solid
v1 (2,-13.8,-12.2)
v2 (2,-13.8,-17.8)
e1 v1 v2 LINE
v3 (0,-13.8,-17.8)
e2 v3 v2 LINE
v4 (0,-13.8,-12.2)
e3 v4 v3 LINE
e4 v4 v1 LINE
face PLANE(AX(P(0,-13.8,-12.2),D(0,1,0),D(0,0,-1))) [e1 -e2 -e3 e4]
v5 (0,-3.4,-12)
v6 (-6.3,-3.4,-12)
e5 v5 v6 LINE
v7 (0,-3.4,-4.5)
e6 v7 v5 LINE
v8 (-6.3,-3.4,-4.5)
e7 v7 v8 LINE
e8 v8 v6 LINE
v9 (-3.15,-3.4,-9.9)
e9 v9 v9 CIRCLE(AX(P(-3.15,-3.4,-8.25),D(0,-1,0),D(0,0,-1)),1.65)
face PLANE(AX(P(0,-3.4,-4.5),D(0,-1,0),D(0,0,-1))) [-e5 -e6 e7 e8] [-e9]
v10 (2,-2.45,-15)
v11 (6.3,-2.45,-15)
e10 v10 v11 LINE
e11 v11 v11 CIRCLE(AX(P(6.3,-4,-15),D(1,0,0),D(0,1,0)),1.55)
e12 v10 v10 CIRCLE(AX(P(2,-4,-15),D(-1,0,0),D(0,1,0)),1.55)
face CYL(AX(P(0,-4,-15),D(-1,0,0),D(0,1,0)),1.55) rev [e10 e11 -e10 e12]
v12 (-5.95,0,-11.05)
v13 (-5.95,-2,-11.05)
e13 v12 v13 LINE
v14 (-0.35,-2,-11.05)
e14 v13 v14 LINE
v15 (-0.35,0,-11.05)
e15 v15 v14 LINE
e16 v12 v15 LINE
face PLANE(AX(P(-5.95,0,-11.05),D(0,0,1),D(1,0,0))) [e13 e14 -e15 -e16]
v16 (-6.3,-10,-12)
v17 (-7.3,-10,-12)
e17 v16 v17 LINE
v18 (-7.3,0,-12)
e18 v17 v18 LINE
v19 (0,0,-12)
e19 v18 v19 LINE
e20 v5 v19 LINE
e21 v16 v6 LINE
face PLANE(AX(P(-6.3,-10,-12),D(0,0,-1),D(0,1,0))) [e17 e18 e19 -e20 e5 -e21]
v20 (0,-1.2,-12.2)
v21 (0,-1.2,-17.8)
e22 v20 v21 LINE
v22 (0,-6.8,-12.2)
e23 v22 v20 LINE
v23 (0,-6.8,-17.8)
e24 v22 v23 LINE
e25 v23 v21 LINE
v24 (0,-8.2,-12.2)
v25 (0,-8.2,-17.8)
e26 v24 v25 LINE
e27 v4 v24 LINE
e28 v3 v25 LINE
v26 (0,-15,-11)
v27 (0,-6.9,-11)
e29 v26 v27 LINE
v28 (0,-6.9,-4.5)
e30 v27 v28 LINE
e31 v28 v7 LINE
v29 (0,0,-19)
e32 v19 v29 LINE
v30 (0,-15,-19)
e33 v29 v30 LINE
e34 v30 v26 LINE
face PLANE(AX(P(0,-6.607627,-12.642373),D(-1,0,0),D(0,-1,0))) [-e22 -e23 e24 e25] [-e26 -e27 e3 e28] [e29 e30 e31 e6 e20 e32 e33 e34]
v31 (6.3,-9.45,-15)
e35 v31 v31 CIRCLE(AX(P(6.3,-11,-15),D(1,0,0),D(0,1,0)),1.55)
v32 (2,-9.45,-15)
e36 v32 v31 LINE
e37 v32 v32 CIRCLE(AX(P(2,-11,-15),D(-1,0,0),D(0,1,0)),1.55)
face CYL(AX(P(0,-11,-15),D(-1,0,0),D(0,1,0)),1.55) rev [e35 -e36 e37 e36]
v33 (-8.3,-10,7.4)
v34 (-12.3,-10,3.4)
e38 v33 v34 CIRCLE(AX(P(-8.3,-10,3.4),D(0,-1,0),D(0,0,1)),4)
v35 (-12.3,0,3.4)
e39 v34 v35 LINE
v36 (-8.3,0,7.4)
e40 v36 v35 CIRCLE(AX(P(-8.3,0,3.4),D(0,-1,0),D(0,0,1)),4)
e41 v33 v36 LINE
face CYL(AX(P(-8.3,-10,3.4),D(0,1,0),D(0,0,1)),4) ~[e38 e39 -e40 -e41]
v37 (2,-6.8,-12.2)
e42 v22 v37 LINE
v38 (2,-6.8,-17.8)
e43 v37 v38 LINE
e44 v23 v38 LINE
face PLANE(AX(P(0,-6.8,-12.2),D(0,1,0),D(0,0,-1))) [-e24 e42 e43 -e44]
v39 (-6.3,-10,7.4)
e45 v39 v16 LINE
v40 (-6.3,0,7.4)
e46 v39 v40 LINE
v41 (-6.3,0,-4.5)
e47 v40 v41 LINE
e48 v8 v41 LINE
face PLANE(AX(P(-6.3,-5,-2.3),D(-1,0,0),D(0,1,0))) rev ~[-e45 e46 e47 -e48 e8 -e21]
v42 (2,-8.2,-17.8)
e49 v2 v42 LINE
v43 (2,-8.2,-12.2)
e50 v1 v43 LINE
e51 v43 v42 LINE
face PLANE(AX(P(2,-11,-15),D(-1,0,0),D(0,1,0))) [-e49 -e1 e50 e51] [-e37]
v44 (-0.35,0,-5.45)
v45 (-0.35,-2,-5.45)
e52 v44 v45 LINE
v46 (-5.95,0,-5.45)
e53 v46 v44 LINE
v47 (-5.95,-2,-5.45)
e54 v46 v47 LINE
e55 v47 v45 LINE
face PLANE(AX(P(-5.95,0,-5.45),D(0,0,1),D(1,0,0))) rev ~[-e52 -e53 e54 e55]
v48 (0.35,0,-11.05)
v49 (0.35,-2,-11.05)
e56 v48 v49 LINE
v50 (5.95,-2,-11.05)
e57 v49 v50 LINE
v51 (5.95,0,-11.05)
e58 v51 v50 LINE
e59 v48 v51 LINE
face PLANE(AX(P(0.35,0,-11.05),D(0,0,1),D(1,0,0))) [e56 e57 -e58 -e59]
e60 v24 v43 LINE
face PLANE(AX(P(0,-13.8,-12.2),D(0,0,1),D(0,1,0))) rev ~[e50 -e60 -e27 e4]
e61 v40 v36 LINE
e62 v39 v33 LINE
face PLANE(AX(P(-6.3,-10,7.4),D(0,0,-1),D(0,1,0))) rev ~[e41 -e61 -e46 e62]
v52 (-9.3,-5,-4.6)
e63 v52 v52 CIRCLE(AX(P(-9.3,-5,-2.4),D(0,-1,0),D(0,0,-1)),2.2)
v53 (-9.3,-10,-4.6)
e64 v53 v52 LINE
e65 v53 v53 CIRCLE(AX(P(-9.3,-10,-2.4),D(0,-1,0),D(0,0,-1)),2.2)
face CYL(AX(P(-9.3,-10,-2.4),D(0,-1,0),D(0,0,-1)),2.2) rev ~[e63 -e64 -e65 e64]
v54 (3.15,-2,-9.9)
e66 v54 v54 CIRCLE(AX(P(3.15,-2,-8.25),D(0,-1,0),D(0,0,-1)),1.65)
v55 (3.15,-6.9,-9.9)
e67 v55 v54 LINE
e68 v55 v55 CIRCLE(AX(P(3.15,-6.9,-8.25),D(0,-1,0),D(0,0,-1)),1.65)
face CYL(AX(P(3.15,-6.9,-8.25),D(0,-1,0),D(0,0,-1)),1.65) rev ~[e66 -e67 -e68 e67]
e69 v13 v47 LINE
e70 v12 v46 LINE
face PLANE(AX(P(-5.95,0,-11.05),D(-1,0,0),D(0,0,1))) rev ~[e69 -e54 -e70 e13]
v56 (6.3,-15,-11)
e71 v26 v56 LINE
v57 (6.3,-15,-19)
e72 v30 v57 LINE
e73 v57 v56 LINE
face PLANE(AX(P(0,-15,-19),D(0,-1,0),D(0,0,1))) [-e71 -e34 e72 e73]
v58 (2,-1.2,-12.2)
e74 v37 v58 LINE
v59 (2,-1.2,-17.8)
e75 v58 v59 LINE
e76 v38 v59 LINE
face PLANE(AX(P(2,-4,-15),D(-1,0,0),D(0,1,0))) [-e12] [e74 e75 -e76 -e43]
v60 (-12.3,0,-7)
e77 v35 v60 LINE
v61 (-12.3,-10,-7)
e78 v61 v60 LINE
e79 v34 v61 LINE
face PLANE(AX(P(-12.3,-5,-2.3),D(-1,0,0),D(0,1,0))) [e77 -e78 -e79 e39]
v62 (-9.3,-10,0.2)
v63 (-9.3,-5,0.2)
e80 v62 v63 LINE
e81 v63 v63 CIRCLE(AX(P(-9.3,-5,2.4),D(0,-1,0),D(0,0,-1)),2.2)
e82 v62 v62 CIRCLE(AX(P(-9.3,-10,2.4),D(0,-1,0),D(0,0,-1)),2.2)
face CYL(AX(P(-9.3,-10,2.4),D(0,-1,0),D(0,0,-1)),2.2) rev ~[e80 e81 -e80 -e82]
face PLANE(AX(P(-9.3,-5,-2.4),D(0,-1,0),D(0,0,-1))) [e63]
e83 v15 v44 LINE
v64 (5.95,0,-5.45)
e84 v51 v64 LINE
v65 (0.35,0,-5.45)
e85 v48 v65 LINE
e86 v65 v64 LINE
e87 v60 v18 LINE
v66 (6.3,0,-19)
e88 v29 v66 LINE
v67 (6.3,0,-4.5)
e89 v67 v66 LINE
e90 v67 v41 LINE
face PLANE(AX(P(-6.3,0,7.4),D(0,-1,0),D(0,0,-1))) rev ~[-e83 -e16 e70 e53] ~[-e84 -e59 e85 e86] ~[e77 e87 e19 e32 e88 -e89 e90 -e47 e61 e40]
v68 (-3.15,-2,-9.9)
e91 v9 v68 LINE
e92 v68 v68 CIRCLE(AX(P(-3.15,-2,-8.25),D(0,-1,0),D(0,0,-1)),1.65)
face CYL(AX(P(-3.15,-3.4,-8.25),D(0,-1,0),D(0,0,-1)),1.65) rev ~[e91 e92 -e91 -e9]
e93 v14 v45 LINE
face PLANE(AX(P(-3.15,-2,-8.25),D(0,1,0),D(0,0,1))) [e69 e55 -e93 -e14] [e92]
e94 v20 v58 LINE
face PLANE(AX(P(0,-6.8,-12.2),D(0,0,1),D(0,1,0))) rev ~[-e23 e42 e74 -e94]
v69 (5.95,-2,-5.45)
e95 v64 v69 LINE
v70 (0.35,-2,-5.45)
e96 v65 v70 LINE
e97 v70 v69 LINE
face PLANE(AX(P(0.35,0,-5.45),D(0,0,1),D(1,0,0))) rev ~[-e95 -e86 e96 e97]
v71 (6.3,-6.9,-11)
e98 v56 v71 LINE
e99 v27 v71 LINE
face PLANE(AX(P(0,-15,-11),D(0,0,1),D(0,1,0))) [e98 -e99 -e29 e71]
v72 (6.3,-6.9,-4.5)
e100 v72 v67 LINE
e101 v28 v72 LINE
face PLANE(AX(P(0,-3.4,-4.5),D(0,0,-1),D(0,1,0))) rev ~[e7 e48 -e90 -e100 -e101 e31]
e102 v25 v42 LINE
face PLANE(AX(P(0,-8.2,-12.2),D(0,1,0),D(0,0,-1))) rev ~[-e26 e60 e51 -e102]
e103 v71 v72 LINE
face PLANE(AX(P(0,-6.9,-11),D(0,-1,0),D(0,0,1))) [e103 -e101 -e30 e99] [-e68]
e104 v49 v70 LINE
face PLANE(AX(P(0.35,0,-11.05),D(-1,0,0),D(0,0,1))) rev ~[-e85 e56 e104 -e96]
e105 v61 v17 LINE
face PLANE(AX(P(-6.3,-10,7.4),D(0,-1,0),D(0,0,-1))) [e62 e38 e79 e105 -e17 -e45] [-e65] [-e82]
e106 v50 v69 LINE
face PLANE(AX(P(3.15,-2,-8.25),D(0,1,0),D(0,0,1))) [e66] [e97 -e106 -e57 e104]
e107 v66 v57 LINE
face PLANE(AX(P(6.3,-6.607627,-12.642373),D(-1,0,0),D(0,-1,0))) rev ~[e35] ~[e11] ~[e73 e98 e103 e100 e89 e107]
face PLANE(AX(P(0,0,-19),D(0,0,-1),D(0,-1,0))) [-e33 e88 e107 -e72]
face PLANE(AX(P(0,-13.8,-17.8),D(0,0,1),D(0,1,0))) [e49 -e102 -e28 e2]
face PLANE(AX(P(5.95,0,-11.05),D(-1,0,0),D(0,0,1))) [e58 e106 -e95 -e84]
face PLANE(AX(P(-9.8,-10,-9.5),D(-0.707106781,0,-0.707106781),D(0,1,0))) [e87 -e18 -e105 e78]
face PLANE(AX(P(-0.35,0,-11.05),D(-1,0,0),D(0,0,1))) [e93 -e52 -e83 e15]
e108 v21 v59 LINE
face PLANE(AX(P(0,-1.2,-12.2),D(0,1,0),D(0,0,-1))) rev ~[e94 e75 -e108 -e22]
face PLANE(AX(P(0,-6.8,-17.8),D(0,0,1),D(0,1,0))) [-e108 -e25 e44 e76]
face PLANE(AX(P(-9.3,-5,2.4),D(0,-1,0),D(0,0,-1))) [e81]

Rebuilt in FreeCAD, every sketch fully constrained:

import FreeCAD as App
import Part
import Sketcher
from FreeCAD import Vector
Q = App.Units.Quantity


def edges_at(feature, points):
    """Names of the edges that pass closest to the given points."""
    edges = feature.Shape.Edges
    near = lambda p: min(range(len(edges)), key=lambda i: edges[i].distToShape(Part.Vertex(*p))[0])
    return sorted({f"Edge{near(p) + 1}" for p in points})

doc = App.newDocument("Part")
body = doc.addObject("PartDesign::Body", "Body")

sketch1 = body.newObject("Sketcher::SketchObject", "Sketch")
sketch1.AttachmentSupport = (doc.getObject("YZ_Plane"), [""])
sketch1.MapMode = "FlatFace"
sketch1.addGeometry(Part.LineSegment(Vector(0, -4.5, 0), Vector(-6.9, -4.5, 0)), False)
sketch1.addGeometry(Part.LineSegment(Vector(-6.9, -4.5, 0), Vector(-6.9, -11, 0)), False)
sketch1.addGeometry(Part.LineSegment(Vector(-6.9, -11, 0), Vector(-15, -11, 0)), False)
sketch1.addGeometry(Part.LineSegment(Vector(-15, -11, 0), Vector(-15, -19, 0)), False)
sketch1.addGeometry(Part.LineSegment(Vector(-15, -19, 0), Vector(0, -19, 0)), False)
sketch1.addGeometry(Part.LineSegment(Vector(0, -19, 0), Vector(0, -4.5, 0)), False)
sketch1.addGeometry(Part.Circle(Vector(-4, -15, 0), Vector(0, 0, 1), 1.55), False)
sketch1.addGeometry(Part.Circle(Vector(-11, -15, 0), Vector(0, 0, 1), 1.55), False)
sketch1.addConstraint(Sketcher.Constraint("Coincident", 0, 2, 1, 1))
sketch1.addConstraint(Sketcher.Constraint("Coincident", 1, 2, 2, 1))
sketch1.addConstraint(Sketcher.Constraint("Coincident", 2, 2, 3, 1))
sketch1.addConstraint(Sketcher.Constraint("Coincident", 3, 2, 4, 1))
sketch1.addConstraint(Sketcher.Constraint("Coincident", 4, 2, 5, 1))
sketch1.addConstraint(Sketcher.Constraint("Coincident", 5, 2, 0, 1))
sketch1.addConstraint(Sketcher.Constraint("Horizontal", 0))
sketch1.addConstraint(Sketcher.Constraint("Vertical", 1))
sketch1.addConstraint(Sketcher.Constraint("Horizontal", 2))
sketch1.addConstraint(Sketcher.Constraint("Vertical", 3))
sketch1.addConstraint(Sketcher.Constraint("Horizontal", 4))
sketch1.addConstraint(Sketcher.Constraint("Vertical", 5))
sketch1.addConstraint(Sketcher.Constraint("Equal", 6, 7))
sketch1.addConstraint(Sketcher.Constraint("PointOnObject", 4, 2, -2))
sketch1.addConstraint(Sketcher.Constraint("Horizontal", 6, 3, 7, 3))
sketch1.addConstraint(Sketcher.Constraint("Diameter", 6, Q("3.1 mm")))
sketch1.addConstraint(Sketcher.Constraint("DistanceX", 4, 1, 4, 2, Q("15 mm")))
sketch1.addConstraint(Sketcher.Constraint("DistanceY", 3, 2, 3, 1, Q("8 mm")))
sketch1.addConstraint(Sketcher.Constraint("DistanceX", 0, 2, 0, 1, Q("6.9 mm")))
sketch1.addConstraint(Sketcher.Constraint("DistanceY", 1, 2, 1, 1, Q("6.5 mm")))
sketch1.addConstraint(Sketcher.Constraint("DistanceX", 6, 3, -1, 1, Q("4 mm")))
sketch1.addConstraint(Sketcher.Constraint("DistanceY", 6, 3, -1, 1, Q("15 mm")))
sketch1.addConstraint(Sketcher.Constraint("DistanceX", 7, 3, -1, 1, Q("11 mm")))
sketch1.addConstraint(Sketcher.Constraint("DistanceY", 1, 2, -1, 1, Q("11 mm")))
pad1 = body.newObject("PartDesign::Pad", "Pad")
pad1.Profile = sketch1
pad1.Length = 6.3

sketch2 = body.newObject("Sketcher::SketchObject", "Sketch001")
sketch2.AttachmentSupport = (doc.getObject("YZ_Plane"), [""])
sketch2.MapMode = "FlatFace"
sketch2.addGeometry(Part.LineSegment(Vector(-3.4, -12, 0), Vector(-3.4, -4.5, 0)), False)
sketch2.addGeometry(Part.LineSegment(Vector(-3.4, -4.5, 0), Vector(0, -4.5, 0)), False)
sketch2.addGeometry(Part.LineSegment(Vector(0, -4.5, 0), Vector(0, -12, 0)), False)
sketch2.addGeometry(Part.LineSegment(Vector(0, -12, 0), Vector(-3.4, -12, 0)), False)
sketch2.addConstraint(Sketcher.Constraint("Coincident", 0, 2, 1, 1))
sketch2.addConstraint(Sketcher.Constraint("Coincident", 1, 2, 2, 1))
sketch2.addConstraint(Sketcher.Constraint("Coincident", 2, 2, 3, 1))
sketch2.addConstraint(Sketcher.Constraint("Coincident", 3, 2, 0, 1))
sketch2.addConstraint(Sketcher.Constraint("Vertical", 0))
sketch2.addConstraint(Sketcher.Constraint("Horizontal", 1))
sketch2.addConstraint(Sketcher.Constraint("Vertical", 2))
sketch2.addConstraint(Sketcher.Constraint("Horizontal", 3))
sketch2.addConstraint(Sketcher.Constraint("PointOnObject", 1, 2, -2))
sketch2.addConstraint(Sketcher.Constraint("DistanceX", 1, 1, 1, 2, Q("3.4 mm")))
sketch2.addConstraint(Sketcher.Constraint("DistanceY", 0, 1, 0, 2, Q("7.5 mm")))
sketch2.addConstraint(Sketcher.Constraint("DistanceY", 2, 2, -1, 1, Q("12 mm")))
pad2 = body.newObject("PartDesign::Pad", "Pad001")
pad2.Profile = sketch2
pad2.Length = 6.3
pad2.Reversed = True

sketch3 = body.newObject("Sketcher::SketchObject", "Sketch002")
sketch3.AttachmentSupport = (doc.getObject("YZ_Plane"), [""])
sketch3.MapMode = "FlatFace"
sketch3.AttachmentOffset = App.Placement(Vector(0, 0, -6.3), App.Rotation())
sketch3.addGeometry(Part.LineSegment(Vector(-10, -12, 0), Vector(-10, 7.4, 0)), False)
sketch3.addGeometry(Part.LineSegment(Vector(-10, 7.4, 0), Vector(0, 7.4, 0)), False)
sketch3.addGeometry(Part.LineSegment(Vector(0, 7.4, 0), Vector(0, -12, 0)), False)
sketch3.addGeometry(Part.LineSegment(Vector(0, -12, 0), Vector(-10, -12, 0)), False)
sketch3.addConstraint(Sketcher.Constraint("Coincident", 0, 2, 1, 1))
sketch3.addConstraint(Sketcher.Constraint("Coincident", 1, 2, 2, 1))
sketch3.addConstraint(Sketcher.Constraint("Coincident", 2, 2, 3, 1))
sketch3.addConstraint(Sketcher.Constraint("Coincident", 3, 2, 0, 1))
sketch3.addConstraint(Sketcher.Constraint("Vertical", 0))
sketch3.addConstraint(Sketcher.Constraint("Horizontal", 1))
sketch3.addConstraint(Sketcher.Constraint("Vertical", 2))
sketch3.addConstraint(Sketcher.Constraint("Horizontal", 3))
sketch3.addConstraint(Sketcher.Constraint("PointOnObject", 1, 2, -2))
sketch3.addConstraint(Sketcher.Constraint("DistanceX", 1, 1, 1, 2, Q("10 mm")))
sketch3.addConstraint(Sketcher.Constraint("DistanceY", 0, 1, 0, 2, Q("19.4 mm")))
sketch3.addConstraint(Sketcher.Constraint("DistanceY", 2, 2, -1, 1, Q("12 mm")))
pad3 = body.newObject("PartDesign::Pad", "Pad002")
pad3.Profile = sketch3
pad3.Length = 6
pad3.Reversed = True

sketch4 = body.newObject("Sketcher::SketchObject", "Sketch003")
sketch4.AttachmentSupport = (doc.getObject("XZ_Plane"), [""])
sketch4.MapMode = "FlatFace"
sketch4.AttachmentOffset = App.Placement(Vector(0, 0, 6.9), App.Rotation())
sketch4.addGeometry(Part.Circle(Vector(3.15, -8.25, 0), Vector(0, 0, 1), 1.65), False)
sketch4.addConstraint(Sketcher.Constraint("Diameter", 0, Q("3.3 mm")))
sketch4.addConstraint(Sketcher.Constraint("DistanceX", -1, 1, 0, 3, Q("3.15 mm")))
sketch4.addConstraint(Sketcher.Constraint("DistanceY", 0, 3, -1, 1, Q("8.25 mm")))
pocket1 = body.newObject("PartDesign::Pocket", "Pocket")
pocket1.Profile = sketch4
pocket1.Type = "ThroughAll"

sketch5 = body.newObject("Sketcher::SketchObject", "Sketch004")
sketch5.AttachmentSupport = (doc.getObject("XZ_Plane"), [""])
sketch5.MapMode = "FlatFace"
sketch5.AttachmentOffset = App.Placement(Vector(0, 0, 3.4), App.Rotation())
sketch5.addGeometry(Part.Circle(Vector(-3.15, -8.25, 0), Vector(0, 0, 1), 1.65), False)
sketch5.addConstraint(Sketcher.Constraint("Diameter", 0, Q("3.3 mm")))
sketch5.addConstraint(Sketcher.Constraint("DistanceX", 0, 3, -1, 1, Q("3.15 mm")))
sketch5.addConstraint(Sketcher.Constraint("DistanceY", 0, 3, -1, 1, Q("8.25 mm")))
pocket2 = body.newObject("PartDesign::Pocket", "Pocket001")
pocket2.Profile = sketch5
pocket2.Type = "ThroughAll"

sketch6 = body.newObject("Sketcher::SketchObject", "Sketch005")
sketch6.AttachmentSupport = (doc.getObject("XZ_Plane"), [""])
sketch6.MapMode = "FlatFace"
sketch6.AttachmentOffset = App.Placement(Vector(0, 0, 10), App.Rotation())
sketch6.addGeometry(Part.Circle(Vector(-9.3, 2.4, 0), Vector(0, 0, 1), 2.2), False)
sketch6.addGeometry(Part.Circle(Vector(-9.3, -2.4, 0), Vector(0, 0, 1), 2.2), False)
sketch6.addConstraint(Sketcher.Constraint("Equal", 0, 1))
sketch6.addConstraint(Sketcher.Constraint("Symmetric", 0, 3, 1, 3, -1))
sketch6.addConstraint(Sketcher.Constraint("Diameter", 0, Q("4.4 mm")))
sketch6.addConstraint(Sketcher.Constraint("DistanceX", 0, 3, -1, 1, Q("9.3 mm")))
sketch6.addConstraint(Sketcher.Constraint("DistanceY", -1, 1, 0, 3, Q("2.4 mm")))
pocket3 = body.newObject("PartDesign::Pocket", "Pocket002")
pocket3.Profile = sketch6
pocket3.Length = 5

sketch7 = body.newObject("Sketcher::SketchObject", "Sketch006")
sketch7.AttachmentSupport = (doc.getObject("YZ_Plane"), [""])
sketch7.MapMode = "FlatFace"
sketch7.addGeometry(Part.LineSegment(Vector(-6.8, -17.8, 0), Vector(-6.8, -12.2, 0)), False)
sketch7.addGeometry(Part.LineSegment(Vector(-6.8, -12.2, 0), Vector(-1.2, -12.2, 0)), False)
sketch7.addGeometry(Part.LineSegment(Vector(-1.2, -12.2, 0), Vector(-1.2, -17.8, 0)), False)
sketch7.addGeometry(Part.LineSegment(Vector(-1.2, -17.8, 0), Vector(-6.8, -17.8, 0)), False)
sketch7.addGeometry(Part.LineSegment(Vector(-13.8, -17.8, 0), Vector(-13.8, -12.2, 0)), False)
sketch7.addGeometry(Part.LineSegment(Vector(-13.8, -12.2, 0), Vector(-8.2, -12.2, 0)), False)
sketch7.addGeometry(Part.LineSegment(Vector(-8.2, -12.2, 0), Vector(-8.2, -17.8, 0)), False)
sketch7.addGeometry(Part.LineSegment(Vector(-8.2, -17.8, 0), Vector(-13.8, -17.8, 0)), False)
sketch7.addConstraint(Sketcher.Constraint("Coincident", 0, 2, 1, 1))
sketch7.addConstraint(Sketcher.Constraint("Coincident", 1, 2, 2, 1))
sketch7.addConstraint(Sketcher.Constraint("Coincident", 2, 2, 3, 1))
sketch7.addConstraint(Sketcher.Constraint("Coincident", 3, 2, 0, 1))
sketch7.addConstraint(Sketcher.Constraint("Coincident", 4, 2, 5, 1))
sketch7.addConstraint(Sketcher.Constraint("Coincident", 5, 2, 6, 1))
sketch7.addConstraint(Sketcher.Constraint("Coincident", 6, 2, 7, 1))
sketch7.addConstraint(Sketcher.Constraint("Coincident", 7, 2, 4, 1))
sketch7.addConstraint(Sketcher.Constraint("Vertical", 0))
sketch7.addConstraint(Sketcher.Constraint("Horizontal", 1))
sketch7.addConstraint(Sketcher.Constraint("Vertical", 2))
sketch7.addConstraint(Sketcher.Constraint("Horizontal", 3))
sketch7.addConstraint(Sketcher.Constraint("Vertical", 4))
sketch7.addConstraint(Sketcher.Constraint("Horizontal", 5))
sketch7.addConstraint(Sketcher.Constraint("Vertical", 6))
sketch7.addConstraint(Sketcher.Constraint("Horizontal", 7))
sketch7.addConstraint(Sketcher.Constraint("Horizontal", 1, 2, 4, 2))
sketch7.addConstraint(Sketcher.Constraint("Horizontal", 3, 2, 6, 2))
sketch7.addConstraint(Sketcher.Constraint("Equal", 3, 5))
sketch7.addConstraint(Sketcher.Constraint("Equal", 7, 0))
sketch7.addConstraint(Sketcher.Constraint("DistanceX", 1, 1, 1, 2, Q("5.6 mm")))
sketch7.addConstraint(Sketcher.Constraint("DistanceX", 4, 2, 0, 2, Q("7 mm")))
sketch7.addConstraint(Sketcher.Constraint("DistanceX", 0, 2, -1, 1, Q("6.8 mm")))
sketch7.addConstraint(Sketcher.Constraint("DistanceY", 0, 2, -1, 1, Q("12.2 mm")))
pocket4 = body.newObject("PartDesign::Pocket", "Pocket003")
pocket4.Profile = sketch7
pocket4.Length = 2
pocket4.Reversed = True

sketch8 = body.newObject("Sketcher::SketchObject", "Sketch007")
sketch8.AttachmentSupport = (doc.getObject("XZ_Plane"), [""])
sketch8.MapMode = "FlatFace"
sketch8.addGeometry(Part.LineSegment(Vector(5.95, -11.05, 0), Vector(0.35, -11.05, 0)), False)
sketch8.addGeometry(Part.LineSegment(Vector(0.35, -11.05, 0), Vector(0.35, -5.45, 0)), False)
sketch8.addGeometry(Part.LineSegment(Vector(0.35, -5.45, 0), Vector(5.95, -5.45, 0)), False)
sketch8.addGeometry(Part.LineSegment(Vector(5.95, -5.45, 0), Vector(5.95, -11.05, 0)), False)
sketch8.addGeometry(Part.LineSegment(Vector(-0.35, -11.05, 0), Vector(-5.95, -11.05, 0)), False)
sketch8.addGeometry(Part.LineSegment(Vector(-5.95, -11.05, 0), Vector(-5.95, -5.45, 0)), False)
sketch8.addGeometry(Part.LineSegment(Vector(-5.95, -5.45, 0), Vector(-0.35, -5.45, 0)), False)
sketch8.addGeometry(Part.LineSegment(Vector(-0.35, -5.45, 0), Vector(-0.35, -11.05, 0)), False)
sketch8.addConstraint(Sketcher.Constraint("Coincident", 0, 2, 1, 1))
sketch8.addConstraint(Sketcher.Constraint("Coincident", 1, 2, 2, 1))
sketch8.addConstraint(Sketcher.Constraint("Coincident", 2, 2, 3, 1))
sketch8.addConstraint(Sketcher.Constraint("Coincident", 3, 2, 0, 1))
sketch8.addConstraint(Sketcher.Constraint("Coincident", 4, 2, 5, 1))
sketch8.addConstraint(Sketcher.Constraint("Coincident", 5, 2, 6, 1))
sketch8.addConstraint(Sketcher.Constraint("Coincident", 6, 2, 7, 1))
sketch8.addConstraint(Sketcher.Constraint("Coincident", 7, 2, 4, 1))
sketch8.addConstraint(Sketcher.Constraint("Horizontal", 0))
sketch8.addConstraint(Sketcher.Constraint("Vertical", 1))
sketch8.addConstraint(Sketcher.Constraint("Horizontal", 2))
sketch8.addConstraint(Sketcher.Constraint("Vertical", 3))
sketch8.addConstraint(Sketcher.Constraint("Horizontal", 4))
sketch8.addConstraint(Sketcher.Constraint("Vertical", 5))
sketch8.addConstraint(Sketcher.Constraint("Horizontal", 6))
sketch8.addConstraint(Sketcher.Constraint("Vertical", 7))
sketch8.addConstraint(Sketcher.Constraint("Symmetric", 3, 2, 4, 2, -2))
sketch8.addConstraint(Sketcher.Constraint("Symmetric", 1, 2, 6, 2, -2))
sketch8.addConstraint(Sketcher.Constraint("Equal", 6, 1))
sketch8.addConstraint(Sketcher.Constraint("DistanceX", 0, 2, 0, 1, Q("5.6 mm")))
sketch8.addConstraint(Sketcher.Constraint("DistanceX", 4, 2, 0, 2, Q("6.3 mm")))
sketch8.addConstraint(Sketcher.Constraint("DistanceY", 0, 2, -1, 1, Q("11.05 mm")))
pocket5 = body.newObject("PartDesign::Pocket", "Pocket004")
pocket5.Profile = sketch8
pocket5.Length = 2
pocket5.Reversed = True
doc.recompute()

fillet = body.newObject("PartDesign::Fillet", "Fillet")
fillet.Base = (pocket5, edges_at(pocket5, [(-12.3, -5, 7.4)]))
fillet.Radius = 4
doc.recompute()

chamfer = body.newObject("PartDesign::Chamfer", "Chamfer")
chamfer.Base = (fillet, edges_at(fillet, [(-12.3, -5, -12)]))
chamfer.Size = 5

doc.recompute()
